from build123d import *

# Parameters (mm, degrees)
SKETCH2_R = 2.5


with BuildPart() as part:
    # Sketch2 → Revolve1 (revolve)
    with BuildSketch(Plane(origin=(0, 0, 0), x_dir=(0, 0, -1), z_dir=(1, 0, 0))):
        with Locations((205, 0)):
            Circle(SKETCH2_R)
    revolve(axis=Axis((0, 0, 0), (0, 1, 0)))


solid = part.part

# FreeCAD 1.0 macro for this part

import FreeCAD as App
import Part
import Sketcher
from FreeCAD import Vector

doc = App.newDocument("Part")
params = doc.addObject("Spreadsheet::Sheet", "Params")
for row, (alias, value) in enumerate([
    ("sketch1_diameter", "5 mm"),
    ("revolution_angle", "360 deg"),
], start=1):
    params.set(f"A{row}", alias)
    params.set(f"B{row}", "=" + value)
    params.setAlias(f"B{row}", alias)

body = doc.addObject("PartDesign::Body", "Body")

# Sketch on YZ plane
sketch1 = body.newObject("Sketcher::SketchObject", "Sketch")
sketch1.AttachmentSupport = (doc.getObject("YZ_Plane"), [""])
sketch1.MapMode = "FlatFace"
sketch1.addGeometry(Part.Circle(Vector(0, -205, 0), Vector(0, 0, 1), 2.5), False)
sketch1.addConstraint(Sketcher.Constraint("PointOnObject", 0, 3, -2))
sketch1.addConstraint(Sketcher.Constraint("Diameter", 0, 5.0))
sketch1.addConstraint(Sketcher.Constraint("DistanceY", 0, 3, -1, 1, 205.0))
sketch1.setExpression("Constraints[1]", "Params.sketch1_diameter")
revolution = body.newObject("PartDesign::Revolution", "Revolution")
revolution.Profile = sketch1
revolution.ReferenceAxis = (sketch1, ["H_Axis"])
revolution.setExpression("Angle", "Params.revolution_angle")

doc.recompute()
